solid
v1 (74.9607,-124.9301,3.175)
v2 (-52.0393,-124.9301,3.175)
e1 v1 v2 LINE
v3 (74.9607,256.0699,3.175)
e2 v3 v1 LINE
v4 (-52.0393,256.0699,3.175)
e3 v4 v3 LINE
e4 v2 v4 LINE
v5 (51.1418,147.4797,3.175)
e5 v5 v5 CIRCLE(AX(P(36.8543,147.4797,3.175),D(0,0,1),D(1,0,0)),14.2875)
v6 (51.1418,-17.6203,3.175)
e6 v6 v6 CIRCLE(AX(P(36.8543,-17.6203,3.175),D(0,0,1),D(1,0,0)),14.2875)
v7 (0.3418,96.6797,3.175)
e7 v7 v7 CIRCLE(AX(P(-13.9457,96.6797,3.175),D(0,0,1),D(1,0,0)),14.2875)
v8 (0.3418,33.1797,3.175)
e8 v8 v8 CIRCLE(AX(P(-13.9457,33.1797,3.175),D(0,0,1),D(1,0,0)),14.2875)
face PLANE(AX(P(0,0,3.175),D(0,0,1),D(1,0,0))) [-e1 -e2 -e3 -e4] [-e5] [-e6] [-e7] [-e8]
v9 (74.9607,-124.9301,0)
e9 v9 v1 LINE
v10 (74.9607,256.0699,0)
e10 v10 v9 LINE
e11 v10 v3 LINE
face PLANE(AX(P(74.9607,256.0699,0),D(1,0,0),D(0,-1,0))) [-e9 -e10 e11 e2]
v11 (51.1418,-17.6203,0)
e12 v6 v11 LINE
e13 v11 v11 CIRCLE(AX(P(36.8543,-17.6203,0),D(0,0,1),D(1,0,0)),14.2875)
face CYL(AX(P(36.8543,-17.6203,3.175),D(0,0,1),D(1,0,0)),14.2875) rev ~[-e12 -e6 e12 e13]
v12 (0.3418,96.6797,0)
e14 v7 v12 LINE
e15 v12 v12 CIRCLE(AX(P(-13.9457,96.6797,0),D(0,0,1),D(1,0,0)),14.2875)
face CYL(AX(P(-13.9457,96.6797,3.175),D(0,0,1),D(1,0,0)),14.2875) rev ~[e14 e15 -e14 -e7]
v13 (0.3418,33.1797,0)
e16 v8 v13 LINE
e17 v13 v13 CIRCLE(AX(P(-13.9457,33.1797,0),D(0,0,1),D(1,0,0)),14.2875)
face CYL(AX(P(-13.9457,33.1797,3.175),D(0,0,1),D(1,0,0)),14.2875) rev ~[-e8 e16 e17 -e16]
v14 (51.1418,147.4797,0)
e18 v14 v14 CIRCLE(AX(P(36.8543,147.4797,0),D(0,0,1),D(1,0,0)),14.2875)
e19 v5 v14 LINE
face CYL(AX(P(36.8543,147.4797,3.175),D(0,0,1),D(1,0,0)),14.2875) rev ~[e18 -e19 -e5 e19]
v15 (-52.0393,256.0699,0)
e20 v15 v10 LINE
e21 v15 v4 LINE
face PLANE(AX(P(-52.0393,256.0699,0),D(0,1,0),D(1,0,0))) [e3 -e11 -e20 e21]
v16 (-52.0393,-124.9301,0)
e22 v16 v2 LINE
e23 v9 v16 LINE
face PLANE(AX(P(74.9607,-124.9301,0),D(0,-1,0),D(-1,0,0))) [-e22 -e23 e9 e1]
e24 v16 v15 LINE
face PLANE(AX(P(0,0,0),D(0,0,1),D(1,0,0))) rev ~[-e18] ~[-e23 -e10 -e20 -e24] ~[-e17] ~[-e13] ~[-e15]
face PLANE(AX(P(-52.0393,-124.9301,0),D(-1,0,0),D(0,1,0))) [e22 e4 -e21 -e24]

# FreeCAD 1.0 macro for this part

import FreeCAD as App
import Part
import Sketcher

V = App.Vector
Q = App.Units.Quantity


def add_polygon(sketch, points):
    """Adds a closed chain of lines whose ends are joined by coincident constraints."""
    first, n = sketch.GeometryCount, len(points)
    for a, b in zip(points, points[1:] + points[:1]):
        sketch.addGeometry(Part.LineSegment(App.Vector(*a, 0), App.Vector(*b, 0)), False)
    for i in range(n):
        sketch.addConstraint(Sketcher.Constraint("Coincident", first + i, 2, first + (i + 1) % n, 1))

doc = App.newDocument("Part")
body = doc.addObject("PartDesign::Body", "Body")

# Sketch on XY plane
sketch1 = body.newObject("Sketcher::SketchObject", "Sketch")
sketch1.AttachmentSupport = (doc.getObject("XY_Plane"), [""])
sketch1.MapMode = "FlatFace"
add_polygon(sketch1, [(74.9607, 256.0699), (-52.0393, 256.0699), (-52.0393, -124.9301), (74.9607, -124.9301)])  # lines 0-3
sketch1.addConstraint([
    Sketcher.Constraint("Horizontal", 0),
    Sketcher.Constraint("Vertical", 1),
    Sketcher.Constraint("Horizontal", 2),
    Sketcher.Constraint("Vertical", 3),
    Sketcher.Constraint("DistanceX", 0, 2, 0, 1, Q("5 in")),
    Sketcher.Constraint("DistanceY", 1, 2, 1, 1, Q("15 in")),
    Sketcher.Constraint("DistanceX", 0, 2, -1, 1, Q("2.0488 in")),
    Sketcher.Constraint("DistanceY", -1, 1, 0, 2, Q("10.0815 in")),
])
pad1 = body.newObject("PartDesign::Pad", "Pad")
pad1.Profile = sketch1
pad1.Length = Q("0.125 in")

# Sketch on XY plane
sketch2 = body.newObject("Sketcher::SketchObject", "Sketch001")
sketch2.AttachmentSupport = (doc.getObject("XY_Plane"), [""])
sketch2.MapMode = "FlatFace"
sketch2.AttachmentOffset = App.Placement(V(0, 0, 0.125 * 25.4), App.Rotation())
sketch2.addGeometry([
    Part.Circle(V(36.8543, 147.4797, 0), V(0, 0, 1), 14.2875),
    Part.Circle(V(36.8543, -17.6203, 0), V(0, 0, 1), 14.2875),
    Part.Circle(V(-13.9457, 96.6797, 0), V(0, 0, 1), 14.2875),
    Part.Circle(V(-13.9457, 33.1797, 0), V(0, 0, 1), 14.2875),
], False)
sketch2.addConstraint([
    Sketcher.Constraint("Equal", 0, 1),
    Sketcher.Constraint("Equal", 1, 2),
    Sketcher.Constraint("Equal", 2, 3),
    Sketcher.Constraint("Vertical", 0, 3, 1, 3),
    Sketcher.Constraint("Vertical", 2, 3, 3, 3),
    Sketcher.Constraint("Diameter", 0, Q("1.125 in")),
    Sketcher.Constraint("DistanceX", 2, 3, 0, 3, Q("2 in")),
    Sketcher.Constraint("DistanceY", 2, 3, 0, 3, Q("2 in")),
    Sketcher.Constraint("DistanceY", 1, 3, 3, 3, Q("2 in")),
    Sketcher.Constraint("DistanceY", 1, 3, 0, 3, Q("6.5 in")),
    Sketcher.Constraint("DistanceX", -1, 1, 0, 3, Q("36.8543 mm")),
    Sketcher.Constraint("DistanceY", -1, 1, 0, 3, Q("147.4797 mm")),
])
pocket1 = body.newObject("PartDesign::Pocket", "Pocket")
pocket1.Profile = sketch2
pocket1.Length = Q("1 in")

doc.recompute()
